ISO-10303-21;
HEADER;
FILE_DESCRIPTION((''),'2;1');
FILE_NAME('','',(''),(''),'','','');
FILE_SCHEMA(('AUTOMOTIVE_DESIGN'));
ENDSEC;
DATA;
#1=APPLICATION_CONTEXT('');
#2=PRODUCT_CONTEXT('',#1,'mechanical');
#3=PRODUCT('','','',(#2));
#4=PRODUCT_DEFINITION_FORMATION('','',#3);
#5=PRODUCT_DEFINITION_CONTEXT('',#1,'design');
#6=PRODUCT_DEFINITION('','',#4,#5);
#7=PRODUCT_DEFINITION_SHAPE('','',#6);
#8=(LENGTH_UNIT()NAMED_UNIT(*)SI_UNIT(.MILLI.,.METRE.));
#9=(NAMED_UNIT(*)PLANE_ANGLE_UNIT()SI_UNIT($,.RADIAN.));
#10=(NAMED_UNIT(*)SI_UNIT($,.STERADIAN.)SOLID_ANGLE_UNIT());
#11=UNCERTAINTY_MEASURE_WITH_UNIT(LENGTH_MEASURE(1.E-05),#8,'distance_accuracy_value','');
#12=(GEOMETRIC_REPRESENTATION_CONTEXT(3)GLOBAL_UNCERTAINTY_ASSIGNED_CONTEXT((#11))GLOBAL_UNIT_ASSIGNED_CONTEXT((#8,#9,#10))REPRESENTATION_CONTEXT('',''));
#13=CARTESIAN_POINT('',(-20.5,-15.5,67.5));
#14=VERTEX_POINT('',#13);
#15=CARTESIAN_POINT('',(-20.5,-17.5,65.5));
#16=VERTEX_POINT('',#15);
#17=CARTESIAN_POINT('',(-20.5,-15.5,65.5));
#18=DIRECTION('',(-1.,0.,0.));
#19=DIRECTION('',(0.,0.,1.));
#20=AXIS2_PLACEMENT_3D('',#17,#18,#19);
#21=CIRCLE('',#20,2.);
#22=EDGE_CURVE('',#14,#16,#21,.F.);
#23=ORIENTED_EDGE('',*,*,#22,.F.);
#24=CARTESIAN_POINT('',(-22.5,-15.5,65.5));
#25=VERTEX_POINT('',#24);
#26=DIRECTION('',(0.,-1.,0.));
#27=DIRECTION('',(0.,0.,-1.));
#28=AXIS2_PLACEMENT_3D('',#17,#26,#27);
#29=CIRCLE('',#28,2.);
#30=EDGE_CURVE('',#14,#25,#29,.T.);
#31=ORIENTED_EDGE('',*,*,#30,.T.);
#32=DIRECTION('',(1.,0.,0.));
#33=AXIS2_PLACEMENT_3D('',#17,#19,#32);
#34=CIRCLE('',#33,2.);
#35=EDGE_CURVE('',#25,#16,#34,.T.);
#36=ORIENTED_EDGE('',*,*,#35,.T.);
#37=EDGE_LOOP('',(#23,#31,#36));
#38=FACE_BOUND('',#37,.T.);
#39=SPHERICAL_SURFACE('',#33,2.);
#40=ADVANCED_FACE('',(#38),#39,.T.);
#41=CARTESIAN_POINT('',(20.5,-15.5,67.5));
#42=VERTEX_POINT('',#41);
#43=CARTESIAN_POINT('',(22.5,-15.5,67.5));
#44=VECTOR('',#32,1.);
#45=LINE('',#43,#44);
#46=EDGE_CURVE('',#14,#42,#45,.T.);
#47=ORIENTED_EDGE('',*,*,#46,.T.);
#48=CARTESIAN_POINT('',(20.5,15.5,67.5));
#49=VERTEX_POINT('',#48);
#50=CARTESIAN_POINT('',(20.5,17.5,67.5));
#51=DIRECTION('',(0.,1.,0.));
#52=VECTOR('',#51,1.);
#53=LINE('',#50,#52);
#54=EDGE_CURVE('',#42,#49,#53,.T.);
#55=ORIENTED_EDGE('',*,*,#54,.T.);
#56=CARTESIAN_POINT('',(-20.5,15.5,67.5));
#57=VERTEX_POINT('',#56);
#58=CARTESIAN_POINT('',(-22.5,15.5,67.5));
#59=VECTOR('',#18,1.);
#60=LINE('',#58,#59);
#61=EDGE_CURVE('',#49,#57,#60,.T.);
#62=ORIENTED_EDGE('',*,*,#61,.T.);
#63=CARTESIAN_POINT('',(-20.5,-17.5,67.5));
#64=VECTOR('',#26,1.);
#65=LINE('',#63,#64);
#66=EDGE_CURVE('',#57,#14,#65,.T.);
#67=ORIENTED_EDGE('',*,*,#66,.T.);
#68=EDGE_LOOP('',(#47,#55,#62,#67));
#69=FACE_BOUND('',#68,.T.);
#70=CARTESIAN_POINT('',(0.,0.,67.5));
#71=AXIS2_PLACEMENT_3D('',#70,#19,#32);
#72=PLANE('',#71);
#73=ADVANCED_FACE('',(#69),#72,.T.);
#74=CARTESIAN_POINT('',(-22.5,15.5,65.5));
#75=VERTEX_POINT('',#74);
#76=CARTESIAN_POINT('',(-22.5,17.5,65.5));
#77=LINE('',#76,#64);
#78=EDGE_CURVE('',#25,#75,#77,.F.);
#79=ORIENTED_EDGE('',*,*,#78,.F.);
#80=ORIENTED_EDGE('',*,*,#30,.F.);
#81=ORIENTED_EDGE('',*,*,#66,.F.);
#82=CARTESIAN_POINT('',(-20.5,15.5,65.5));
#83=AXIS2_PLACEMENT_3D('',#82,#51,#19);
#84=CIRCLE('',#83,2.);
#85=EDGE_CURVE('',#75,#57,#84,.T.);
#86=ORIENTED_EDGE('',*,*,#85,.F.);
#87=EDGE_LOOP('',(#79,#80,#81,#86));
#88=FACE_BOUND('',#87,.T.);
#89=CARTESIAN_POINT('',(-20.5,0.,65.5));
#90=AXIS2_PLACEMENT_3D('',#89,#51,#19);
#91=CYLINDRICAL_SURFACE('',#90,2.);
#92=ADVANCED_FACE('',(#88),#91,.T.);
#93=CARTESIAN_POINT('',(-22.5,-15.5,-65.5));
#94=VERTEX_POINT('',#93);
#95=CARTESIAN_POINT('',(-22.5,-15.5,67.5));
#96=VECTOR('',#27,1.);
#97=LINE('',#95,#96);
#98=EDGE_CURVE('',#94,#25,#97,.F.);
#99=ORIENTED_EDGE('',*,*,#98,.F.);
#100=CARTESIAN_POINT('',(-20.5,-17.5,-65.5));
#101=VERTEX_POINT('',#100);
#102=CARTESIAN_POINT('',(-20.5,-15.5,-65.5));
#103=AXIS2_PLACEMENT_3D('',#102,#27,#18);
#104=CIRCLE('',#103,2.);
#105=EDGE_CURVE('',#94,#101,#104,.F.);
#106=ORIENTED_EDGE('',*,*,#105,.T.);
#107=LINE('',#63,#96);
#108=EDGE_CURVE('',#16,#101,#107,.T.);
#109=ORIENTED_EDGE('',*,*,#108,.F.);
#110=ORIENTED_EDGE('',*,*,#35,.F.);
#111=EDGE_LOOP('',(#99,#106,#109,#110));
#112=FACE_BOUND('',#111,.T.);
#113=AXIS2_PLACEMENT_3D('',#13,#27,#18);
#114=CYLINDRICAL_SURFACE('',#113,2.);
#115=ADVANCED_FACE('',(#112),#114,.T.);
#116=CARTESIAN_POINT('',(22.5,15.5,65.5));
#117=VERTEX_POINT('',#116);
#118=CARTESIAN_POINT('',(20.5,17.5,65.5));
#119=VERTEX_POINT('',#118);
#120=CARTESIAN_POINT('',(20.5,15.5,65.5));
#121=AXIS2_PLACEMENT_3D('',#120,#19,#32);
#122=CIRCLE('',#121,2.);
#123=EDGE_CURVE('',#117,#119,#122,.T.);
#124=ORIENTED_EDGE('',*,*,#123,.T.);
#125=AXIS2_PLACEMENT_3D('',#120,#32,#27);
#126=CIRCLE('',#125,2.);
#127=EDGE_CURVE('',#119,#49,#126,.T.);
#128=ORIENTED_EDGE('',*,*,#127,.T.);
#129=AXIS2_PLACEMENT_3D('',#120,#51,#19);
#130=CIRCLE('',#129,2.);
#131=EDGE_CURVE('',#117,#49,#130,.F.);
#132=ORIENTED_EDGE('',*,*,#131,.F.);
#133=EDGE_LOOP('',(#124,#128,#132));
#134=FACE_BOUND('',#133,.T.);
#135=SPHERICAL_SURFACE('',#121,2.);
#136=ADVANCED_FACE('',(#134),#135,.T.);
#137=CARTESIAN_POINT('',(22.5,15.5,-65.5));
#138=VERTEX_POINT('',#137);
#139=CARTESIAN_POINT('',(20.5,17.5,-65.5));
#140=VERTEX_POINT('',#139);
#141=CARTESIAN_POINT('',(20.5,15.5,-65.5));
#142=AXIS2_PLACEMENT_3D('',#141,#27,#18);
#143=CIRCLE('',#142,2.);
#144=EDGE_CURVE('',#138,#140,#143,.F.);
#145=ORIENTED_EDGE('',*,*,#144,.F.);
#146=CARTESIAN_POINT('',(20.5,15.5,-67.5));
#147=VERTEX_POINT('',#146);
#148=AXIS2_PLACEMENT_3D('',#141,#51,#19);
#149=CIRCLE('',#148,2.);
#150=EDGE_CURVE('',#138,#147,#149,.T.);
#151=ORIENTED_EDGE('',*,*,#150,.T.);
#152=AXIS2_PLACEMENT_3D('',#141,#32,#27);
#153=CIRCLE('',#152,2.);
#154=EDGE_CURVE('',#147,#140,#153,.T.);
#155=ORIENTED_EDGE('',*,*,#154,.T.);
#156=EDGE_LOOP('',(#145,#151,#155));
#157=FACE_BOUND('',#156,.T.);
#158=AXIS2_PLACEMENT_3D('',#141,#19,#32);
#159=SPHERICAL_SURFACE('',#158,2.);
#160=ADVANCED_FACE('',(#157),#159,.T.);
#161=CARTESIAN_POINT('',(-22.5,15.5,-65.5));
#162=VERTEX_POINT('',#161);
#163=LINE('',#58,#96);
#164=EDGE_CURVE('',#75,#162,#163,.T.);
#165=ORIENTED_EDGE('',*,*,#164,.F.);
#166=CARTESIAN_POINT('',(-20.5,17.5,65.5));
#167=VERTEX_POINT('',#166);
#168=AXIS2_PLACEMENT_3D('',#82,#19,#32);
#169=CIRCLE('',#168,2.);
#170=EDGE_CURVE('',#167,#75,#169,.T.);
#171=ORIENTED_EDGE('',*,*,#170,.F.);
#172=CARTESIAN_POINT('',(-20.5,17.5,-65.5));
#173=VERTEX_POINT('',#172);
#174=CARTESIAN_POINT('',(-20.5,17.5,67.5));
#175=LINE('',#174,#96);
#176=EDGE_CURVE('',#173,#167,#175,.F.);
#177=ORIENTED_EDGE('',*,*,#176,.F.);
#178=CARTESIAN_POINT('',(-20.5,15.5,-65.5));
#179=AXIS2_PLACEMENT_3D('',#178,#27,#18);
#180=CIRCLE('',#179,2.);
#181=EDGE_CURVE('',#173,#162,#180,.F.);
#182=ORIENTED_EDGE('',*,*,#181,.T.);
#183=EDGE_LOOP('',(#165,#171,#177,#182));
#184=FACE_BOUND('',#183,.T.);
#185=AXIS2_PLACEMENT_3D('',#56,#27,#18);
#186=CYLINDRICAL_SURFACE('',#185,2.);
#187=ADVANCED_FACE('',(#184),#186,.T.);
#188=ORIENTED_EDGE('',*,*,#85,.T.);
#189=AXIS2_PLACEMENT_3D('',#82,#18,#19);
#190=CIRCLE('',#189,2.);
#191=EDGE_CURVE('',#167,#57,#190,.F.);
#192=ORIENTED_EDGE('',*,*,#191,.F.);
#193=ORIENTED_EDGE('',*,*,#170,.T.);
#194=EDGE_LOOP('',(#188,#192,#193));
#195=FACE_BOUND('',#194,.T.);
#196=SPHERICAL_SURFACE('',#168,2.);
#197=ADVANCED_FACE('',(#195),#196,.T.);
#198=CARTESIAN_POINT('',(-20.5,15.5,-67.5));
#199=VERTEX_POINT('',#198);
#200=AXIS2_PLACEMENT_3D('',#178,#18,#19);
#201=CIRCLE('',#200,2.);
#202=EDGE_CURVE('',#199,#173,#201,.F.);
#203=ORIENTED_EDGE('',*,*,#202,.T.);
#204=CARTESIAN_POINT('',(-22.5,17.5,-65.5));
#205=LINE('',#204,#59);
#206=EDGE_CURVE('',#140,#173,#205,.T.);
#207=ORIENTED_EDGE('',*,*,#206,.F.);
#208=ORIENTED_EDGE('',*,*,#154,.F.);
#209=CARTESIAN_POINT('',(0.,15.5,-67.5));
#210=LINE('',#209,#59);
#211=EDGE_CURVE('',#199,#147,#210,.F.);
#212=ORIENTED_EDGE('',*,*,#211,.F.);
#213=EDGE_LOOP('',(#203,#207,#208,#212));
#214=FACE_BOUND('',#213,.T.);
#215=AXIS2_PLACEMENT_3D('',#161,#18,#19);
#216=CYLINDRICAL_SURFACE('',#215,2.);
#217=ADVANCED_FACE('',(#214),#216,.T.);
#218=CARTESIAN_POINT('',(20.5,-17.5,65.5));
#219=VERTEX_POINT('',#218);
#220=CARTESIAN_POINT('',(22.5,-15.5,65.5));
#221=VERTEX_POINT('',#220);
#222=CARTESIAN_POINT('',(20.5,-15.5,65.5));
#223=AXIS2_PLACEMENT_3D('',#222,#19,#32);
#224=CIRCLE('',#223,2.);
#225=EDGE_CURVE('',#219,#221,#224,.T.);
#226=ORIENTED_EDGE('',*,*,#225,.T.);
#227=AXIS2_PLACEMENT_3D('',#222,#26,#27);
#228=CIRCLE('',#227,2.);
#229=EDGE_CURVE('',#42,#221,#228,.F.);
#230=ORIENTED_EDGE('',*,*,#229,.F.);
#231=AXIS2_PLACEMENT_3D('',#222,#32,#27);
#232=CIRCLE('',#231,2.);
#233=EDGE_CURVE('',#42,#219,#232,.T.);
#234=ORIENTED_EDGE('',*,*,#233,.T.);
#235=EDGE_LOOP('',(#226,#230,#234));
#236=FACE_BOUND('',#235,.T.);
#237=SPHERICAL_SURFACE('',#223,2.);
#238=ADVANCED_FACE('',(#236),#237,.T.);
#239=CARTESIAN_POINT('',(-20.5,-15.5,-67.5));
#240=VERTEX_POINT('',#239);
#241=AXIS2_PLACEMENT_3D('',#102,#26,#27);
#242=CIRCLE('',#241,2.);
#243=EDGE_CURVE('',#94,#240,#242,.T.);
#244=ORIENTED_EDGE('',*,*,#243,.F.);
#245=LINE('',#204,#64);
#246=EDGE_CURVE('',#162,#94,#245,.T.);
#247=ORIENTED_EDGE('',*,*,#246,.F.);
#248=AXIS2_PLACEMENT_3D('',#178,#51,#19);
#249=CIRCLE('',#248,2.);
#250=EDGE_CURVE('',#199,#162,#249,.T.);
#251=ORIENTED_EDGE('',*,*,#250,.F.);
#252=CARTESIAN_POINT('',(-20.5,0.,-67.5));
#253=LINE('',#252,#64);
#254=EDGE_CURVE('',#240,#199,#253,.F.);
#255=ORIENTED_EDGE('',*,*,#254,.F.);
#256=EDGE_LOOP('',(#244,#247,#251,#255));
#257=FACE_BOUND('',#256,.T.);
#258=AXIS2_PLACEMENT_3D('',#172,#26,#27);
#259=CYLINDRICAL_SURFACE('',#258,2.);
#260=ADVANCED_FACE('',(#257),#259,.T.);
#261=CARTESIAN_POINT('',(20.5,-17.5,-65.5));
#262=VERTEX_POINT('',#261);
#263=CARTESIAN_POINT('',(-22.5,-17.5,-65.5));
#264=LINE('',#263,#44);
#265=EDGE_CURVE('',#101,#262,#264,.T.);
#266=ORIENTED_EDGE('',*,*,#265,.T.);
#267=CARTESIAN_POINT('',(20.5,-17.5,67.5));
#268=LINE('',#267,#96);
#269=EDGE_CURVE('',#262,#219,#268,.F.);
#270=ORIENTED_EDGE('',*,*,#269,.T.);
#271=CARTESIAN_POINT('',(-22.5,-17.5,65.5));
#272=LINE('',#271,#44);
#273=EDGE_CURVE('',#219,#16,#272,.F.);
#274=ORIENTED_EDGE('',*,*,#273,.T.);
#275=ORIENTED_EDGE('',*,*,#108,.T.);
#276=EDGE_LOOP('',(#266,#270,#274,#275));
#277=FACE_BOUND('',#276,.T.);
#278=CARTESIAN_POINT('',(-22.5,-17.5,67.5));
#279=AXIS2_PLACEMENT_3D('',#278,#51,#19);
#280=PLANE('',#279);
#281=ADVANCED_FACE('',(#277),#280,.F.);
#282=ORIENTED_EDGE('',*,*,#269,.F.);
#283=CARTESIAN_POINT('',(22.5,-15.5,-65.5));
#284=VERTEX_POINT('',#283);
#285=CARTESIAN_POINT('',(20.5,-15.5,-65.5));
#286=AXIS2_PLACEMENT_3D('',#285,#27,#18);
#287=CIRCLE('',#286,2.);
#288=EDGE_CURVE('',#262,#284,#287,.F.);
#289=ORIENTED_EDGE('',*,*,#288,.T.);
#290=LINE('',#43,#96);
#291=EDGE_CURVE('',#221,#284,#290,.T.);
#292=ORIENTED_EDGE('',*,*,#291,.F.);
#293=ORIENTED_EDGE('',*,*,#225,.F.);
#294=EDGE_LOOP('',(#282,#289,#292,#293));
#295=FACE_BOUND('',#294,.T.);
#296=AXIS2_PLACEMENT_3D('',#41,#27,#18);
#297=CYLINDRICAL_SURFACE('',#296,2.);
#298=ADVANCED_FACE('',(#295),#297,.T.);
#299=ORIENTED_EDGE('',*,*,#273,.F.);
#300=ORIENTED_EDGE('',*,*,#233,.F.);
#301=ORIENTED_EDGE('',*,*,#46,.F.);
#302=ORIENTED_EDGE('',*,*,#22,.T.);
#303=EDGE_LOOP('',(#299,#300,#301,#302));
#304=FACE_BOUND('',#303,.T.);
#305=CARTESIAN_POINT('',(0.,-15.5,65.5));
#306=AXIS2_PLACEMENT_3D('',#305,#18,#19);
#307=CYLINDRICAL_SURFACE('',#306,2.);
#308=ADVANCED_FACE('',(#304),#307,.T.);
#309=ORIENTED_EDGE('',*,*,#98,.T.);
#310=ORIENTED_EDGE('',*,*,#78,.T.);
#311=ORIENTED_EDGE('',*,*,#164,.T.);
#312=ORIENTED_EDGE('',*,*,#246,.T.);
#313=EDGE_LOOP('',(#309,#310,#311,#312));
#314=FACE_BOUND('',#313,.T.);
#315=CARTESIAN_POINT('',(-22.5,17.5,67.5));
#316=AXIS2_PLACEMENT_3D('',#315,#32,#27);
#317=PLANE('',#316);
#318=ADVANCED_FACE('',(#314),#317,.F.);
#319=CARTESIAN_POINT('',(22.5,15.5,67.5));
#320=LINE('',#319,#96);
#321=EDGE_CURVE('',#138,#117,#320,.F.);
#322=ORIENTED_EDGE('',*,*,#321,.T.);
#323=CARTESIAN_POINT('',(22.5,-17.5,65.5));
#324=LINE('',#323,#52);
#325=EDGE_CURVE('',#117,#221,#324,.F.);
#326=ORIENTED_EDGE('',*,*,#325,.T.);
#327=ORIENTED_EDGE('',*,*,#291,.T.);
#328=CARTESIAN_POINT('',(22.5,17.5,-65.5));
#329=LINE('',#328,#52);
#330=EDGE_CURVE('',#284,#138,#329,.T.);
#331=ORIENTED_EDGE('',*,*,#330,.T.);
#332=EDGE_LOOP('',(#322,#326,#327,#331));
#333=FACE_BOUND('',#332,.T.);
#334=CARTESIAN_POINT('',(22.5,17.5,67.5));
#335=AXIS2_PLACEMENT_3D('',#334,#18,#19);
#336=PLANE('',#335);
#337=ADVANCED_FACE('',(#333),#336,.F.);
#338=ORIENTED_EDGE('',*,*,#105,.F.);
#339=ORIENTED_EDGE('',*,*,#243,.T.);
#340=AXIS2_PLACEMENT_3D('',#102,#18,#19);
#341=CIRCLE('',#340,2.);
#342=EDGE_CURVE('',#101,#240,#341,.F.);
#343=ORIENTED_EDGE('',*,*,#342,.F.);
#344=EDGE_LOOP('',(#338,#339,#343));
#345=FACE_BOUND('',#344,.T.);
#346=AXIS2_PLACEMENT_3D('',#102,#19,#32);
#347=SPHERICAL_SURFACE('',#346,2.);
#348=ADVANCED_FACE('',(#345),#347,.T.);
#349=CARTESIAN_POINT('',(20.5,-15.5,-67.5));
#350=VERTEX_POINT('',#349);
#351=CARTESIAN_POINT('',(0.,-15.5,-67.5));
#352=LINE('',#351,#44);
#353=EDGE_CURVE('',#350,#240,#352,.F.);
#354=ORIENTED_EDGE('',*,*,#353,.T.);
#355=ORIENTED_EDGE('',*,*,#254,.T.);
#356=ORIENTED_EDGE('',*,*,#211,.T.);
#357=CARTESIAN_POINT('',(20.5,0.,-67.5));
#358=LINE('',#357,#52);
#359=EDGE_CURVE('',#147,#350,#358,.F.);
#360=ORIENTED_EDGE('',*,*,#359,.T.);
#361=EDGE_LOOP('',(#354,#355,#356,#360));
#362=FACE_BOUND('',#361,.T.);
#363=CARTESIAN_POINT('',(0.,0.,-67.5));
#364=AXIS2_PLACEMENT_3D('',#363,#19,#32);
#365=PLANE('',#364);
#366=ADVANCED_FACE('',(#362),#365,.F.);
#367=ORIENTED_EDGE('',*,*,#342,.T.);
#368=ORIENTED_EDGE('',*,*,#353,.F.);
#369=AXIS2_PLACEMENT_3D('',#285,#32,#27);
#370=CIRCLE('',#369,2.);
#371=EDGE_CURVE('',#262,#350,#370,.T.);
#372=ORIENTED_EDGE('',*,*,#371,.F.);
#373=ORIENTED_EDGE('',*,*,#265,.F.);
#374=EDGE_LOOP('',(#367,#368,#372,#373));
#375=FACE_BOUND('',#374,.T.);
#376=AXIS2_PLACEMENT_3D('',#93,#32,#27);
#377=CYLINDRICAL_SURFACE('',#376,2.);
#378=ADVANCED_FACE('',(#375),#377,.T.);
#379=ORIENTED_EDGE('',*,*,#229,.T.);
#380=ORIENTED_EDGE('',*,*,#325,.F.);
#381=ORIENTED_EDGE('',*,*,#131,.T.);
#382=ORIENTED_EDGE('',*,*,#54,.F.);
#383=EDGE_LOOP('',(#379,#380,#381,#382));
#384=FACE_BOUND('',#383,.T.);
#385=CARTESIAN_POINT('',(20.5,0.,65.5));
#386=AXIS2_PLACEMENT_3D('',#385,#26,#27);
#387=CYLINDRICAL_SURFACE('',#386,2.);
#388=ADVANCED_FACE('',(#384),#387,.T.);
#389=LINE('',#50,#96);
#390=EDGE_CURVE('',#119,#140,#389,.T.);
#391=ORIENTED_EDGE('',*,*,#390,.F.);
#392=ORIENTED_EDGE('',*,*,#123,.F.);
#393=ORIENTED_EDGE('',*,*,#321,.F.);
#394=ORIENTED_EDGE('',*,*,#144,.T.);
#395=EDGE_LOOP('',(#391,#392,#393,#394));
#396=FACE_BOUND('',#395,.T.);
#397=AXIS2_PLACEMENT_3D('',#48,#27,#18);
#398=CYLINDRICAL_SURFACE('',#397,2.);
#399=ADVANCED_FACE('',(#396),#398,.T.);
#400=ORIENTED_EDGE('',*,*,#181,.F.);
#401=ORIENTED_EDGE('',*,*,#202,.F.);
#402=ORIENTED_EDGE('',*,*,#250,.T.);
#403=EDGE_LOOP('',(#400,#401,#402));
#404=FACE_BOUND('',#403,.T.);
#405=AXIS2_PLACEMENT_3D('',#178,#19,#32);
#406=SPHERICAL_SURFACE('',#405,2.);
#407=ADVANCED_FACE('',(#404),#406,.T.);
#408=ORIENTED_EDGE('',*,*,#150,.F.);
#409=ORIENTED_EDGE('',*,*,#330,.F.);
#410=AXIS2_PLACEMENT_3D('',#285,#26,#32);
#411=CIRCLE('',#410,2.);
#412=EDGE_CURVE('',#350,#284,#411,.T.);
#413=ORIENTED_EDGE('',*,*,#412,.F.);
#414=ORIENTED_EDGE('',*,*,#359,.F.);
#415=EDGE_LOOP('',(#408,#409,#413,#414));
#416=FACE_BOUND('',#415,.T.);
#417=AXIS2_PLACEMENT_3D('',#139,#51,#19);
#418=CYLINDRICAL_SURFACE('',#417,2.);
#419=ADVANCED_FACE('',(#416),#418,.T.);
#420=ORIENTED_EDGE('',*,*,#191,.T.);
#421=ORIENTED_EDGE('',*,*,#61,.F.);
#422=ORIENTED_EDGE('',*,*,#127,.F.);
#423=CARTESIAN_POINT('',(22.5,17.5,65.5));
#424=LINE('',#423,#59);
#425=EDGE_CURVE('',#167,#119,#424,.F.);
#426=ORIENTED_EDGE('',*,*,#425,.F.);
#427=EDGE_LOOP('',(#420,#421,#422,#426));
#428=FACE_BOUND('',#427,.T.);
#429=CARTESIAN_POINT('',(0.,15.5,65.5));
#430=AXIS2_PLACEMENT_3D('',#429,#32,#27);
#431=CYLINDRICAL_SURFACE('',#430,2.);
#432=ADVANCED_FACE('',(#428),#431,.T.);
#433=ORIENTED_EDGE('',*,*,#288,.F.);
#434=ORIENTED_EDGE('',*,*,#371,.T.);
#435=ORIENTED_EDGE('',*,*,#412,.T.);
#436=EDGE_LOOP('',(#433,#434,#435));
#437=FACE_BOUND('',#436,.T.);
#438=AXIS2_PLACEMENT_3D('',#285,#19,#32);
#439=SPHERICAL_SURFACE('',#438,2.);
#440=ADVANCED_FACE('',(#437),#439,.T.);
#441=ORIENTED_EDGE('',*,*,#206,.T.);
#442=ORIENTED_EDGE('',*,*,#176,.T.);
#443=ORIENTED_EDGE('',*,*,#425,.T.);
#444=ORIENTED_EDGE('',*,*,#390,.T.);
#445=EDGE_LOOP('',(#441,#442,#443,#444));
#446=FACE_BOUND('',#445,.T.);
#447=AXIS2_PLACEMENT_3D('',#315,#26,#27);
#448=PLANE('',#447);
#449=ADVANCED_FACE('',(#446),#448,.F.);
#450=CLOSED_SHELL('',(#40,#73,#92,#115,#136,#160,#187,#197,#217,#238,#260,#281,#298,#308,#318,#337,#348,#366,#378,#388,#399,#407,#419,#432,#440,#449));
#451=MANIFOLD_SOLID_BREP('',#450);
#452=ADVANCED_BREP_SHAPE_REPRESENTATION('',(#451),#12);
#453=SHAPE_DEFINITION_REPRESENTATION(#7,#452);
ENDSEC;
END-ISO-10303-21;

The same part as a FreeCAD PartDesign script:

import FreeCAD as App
import Part
import Sketcher
Q = App.Units.Quantity


def add_polygon(sketch, points):
    """Adds a closed chain of lines whose ends are joined by coincident constraints."""
    first, n = sketch.GeometryCount, len(points)
    for a, b in zip(points, points[1:] + points[:1]):
        sketch.addGeometry(Part.LineSegment(App.Vector(*a, 0), App.Vector(*b, 0)), False)
    for i in range(n):
        sketch.addConstraint(Sketcher.Constraint("Coincident", first + i, 2, first + (i + 1) % n, 1))

doc = App.newDocument("Part")
body = doc.addObject("PartDesign::Body", "Body")

# Sketch on XY plane
sketch1 = doc.addObject("Sketcher::SketchObject", "Sketch")
body.addObject(sketch1)
sketch1.AttachmentSupport = (doc.XY_Plane, [""])
sketch1.MapMode = "FlatFace"
add_polygon(sketch1, [(-22, 18), (-22, -18), (22, -18), (22, 18)])  # lines 0-3
sketch1.addConstraint(Sketcher.Constraint("Vertical", 0))
sketch1.addConstraint(Sketcher.Constraint("Horizontal", 1))
sketch1.addConstraint(Sketcher.Constraint("Vertical", 2))
sketch1.addConstraint(Sketcher.Constraint("Horizontal", 3))
sketch1.addConstraint(Sketcher.Constraint("Symmetric", 0, 2, 2, 2, -1, 1))
sketch1.addConstraint(Sketcher.Constraint("DistanceX", 1, 1, 1, 2, Q("45 mm")))
sketch1.addConstraint(Sketcher.Constraint("DistanceY", 0, 2, 0, 1, Q("35 mm")))
pad1 = doc.addObject("PartDesign::Pad", "Pad")
body.addObject(pad1)
pad1.Profile = sketch1
pad1.Length = 135
pad1.Midplane = True
doc.recompute()

fillet = doc.addObject("PartDesign::Fillet", "Fillet")
body.addObject(fillet)
fillet.Base = (pad1, ["Edge1"])
fillet.UseAllEdges = True
fillet.Radius = 2

doc.recompute()
